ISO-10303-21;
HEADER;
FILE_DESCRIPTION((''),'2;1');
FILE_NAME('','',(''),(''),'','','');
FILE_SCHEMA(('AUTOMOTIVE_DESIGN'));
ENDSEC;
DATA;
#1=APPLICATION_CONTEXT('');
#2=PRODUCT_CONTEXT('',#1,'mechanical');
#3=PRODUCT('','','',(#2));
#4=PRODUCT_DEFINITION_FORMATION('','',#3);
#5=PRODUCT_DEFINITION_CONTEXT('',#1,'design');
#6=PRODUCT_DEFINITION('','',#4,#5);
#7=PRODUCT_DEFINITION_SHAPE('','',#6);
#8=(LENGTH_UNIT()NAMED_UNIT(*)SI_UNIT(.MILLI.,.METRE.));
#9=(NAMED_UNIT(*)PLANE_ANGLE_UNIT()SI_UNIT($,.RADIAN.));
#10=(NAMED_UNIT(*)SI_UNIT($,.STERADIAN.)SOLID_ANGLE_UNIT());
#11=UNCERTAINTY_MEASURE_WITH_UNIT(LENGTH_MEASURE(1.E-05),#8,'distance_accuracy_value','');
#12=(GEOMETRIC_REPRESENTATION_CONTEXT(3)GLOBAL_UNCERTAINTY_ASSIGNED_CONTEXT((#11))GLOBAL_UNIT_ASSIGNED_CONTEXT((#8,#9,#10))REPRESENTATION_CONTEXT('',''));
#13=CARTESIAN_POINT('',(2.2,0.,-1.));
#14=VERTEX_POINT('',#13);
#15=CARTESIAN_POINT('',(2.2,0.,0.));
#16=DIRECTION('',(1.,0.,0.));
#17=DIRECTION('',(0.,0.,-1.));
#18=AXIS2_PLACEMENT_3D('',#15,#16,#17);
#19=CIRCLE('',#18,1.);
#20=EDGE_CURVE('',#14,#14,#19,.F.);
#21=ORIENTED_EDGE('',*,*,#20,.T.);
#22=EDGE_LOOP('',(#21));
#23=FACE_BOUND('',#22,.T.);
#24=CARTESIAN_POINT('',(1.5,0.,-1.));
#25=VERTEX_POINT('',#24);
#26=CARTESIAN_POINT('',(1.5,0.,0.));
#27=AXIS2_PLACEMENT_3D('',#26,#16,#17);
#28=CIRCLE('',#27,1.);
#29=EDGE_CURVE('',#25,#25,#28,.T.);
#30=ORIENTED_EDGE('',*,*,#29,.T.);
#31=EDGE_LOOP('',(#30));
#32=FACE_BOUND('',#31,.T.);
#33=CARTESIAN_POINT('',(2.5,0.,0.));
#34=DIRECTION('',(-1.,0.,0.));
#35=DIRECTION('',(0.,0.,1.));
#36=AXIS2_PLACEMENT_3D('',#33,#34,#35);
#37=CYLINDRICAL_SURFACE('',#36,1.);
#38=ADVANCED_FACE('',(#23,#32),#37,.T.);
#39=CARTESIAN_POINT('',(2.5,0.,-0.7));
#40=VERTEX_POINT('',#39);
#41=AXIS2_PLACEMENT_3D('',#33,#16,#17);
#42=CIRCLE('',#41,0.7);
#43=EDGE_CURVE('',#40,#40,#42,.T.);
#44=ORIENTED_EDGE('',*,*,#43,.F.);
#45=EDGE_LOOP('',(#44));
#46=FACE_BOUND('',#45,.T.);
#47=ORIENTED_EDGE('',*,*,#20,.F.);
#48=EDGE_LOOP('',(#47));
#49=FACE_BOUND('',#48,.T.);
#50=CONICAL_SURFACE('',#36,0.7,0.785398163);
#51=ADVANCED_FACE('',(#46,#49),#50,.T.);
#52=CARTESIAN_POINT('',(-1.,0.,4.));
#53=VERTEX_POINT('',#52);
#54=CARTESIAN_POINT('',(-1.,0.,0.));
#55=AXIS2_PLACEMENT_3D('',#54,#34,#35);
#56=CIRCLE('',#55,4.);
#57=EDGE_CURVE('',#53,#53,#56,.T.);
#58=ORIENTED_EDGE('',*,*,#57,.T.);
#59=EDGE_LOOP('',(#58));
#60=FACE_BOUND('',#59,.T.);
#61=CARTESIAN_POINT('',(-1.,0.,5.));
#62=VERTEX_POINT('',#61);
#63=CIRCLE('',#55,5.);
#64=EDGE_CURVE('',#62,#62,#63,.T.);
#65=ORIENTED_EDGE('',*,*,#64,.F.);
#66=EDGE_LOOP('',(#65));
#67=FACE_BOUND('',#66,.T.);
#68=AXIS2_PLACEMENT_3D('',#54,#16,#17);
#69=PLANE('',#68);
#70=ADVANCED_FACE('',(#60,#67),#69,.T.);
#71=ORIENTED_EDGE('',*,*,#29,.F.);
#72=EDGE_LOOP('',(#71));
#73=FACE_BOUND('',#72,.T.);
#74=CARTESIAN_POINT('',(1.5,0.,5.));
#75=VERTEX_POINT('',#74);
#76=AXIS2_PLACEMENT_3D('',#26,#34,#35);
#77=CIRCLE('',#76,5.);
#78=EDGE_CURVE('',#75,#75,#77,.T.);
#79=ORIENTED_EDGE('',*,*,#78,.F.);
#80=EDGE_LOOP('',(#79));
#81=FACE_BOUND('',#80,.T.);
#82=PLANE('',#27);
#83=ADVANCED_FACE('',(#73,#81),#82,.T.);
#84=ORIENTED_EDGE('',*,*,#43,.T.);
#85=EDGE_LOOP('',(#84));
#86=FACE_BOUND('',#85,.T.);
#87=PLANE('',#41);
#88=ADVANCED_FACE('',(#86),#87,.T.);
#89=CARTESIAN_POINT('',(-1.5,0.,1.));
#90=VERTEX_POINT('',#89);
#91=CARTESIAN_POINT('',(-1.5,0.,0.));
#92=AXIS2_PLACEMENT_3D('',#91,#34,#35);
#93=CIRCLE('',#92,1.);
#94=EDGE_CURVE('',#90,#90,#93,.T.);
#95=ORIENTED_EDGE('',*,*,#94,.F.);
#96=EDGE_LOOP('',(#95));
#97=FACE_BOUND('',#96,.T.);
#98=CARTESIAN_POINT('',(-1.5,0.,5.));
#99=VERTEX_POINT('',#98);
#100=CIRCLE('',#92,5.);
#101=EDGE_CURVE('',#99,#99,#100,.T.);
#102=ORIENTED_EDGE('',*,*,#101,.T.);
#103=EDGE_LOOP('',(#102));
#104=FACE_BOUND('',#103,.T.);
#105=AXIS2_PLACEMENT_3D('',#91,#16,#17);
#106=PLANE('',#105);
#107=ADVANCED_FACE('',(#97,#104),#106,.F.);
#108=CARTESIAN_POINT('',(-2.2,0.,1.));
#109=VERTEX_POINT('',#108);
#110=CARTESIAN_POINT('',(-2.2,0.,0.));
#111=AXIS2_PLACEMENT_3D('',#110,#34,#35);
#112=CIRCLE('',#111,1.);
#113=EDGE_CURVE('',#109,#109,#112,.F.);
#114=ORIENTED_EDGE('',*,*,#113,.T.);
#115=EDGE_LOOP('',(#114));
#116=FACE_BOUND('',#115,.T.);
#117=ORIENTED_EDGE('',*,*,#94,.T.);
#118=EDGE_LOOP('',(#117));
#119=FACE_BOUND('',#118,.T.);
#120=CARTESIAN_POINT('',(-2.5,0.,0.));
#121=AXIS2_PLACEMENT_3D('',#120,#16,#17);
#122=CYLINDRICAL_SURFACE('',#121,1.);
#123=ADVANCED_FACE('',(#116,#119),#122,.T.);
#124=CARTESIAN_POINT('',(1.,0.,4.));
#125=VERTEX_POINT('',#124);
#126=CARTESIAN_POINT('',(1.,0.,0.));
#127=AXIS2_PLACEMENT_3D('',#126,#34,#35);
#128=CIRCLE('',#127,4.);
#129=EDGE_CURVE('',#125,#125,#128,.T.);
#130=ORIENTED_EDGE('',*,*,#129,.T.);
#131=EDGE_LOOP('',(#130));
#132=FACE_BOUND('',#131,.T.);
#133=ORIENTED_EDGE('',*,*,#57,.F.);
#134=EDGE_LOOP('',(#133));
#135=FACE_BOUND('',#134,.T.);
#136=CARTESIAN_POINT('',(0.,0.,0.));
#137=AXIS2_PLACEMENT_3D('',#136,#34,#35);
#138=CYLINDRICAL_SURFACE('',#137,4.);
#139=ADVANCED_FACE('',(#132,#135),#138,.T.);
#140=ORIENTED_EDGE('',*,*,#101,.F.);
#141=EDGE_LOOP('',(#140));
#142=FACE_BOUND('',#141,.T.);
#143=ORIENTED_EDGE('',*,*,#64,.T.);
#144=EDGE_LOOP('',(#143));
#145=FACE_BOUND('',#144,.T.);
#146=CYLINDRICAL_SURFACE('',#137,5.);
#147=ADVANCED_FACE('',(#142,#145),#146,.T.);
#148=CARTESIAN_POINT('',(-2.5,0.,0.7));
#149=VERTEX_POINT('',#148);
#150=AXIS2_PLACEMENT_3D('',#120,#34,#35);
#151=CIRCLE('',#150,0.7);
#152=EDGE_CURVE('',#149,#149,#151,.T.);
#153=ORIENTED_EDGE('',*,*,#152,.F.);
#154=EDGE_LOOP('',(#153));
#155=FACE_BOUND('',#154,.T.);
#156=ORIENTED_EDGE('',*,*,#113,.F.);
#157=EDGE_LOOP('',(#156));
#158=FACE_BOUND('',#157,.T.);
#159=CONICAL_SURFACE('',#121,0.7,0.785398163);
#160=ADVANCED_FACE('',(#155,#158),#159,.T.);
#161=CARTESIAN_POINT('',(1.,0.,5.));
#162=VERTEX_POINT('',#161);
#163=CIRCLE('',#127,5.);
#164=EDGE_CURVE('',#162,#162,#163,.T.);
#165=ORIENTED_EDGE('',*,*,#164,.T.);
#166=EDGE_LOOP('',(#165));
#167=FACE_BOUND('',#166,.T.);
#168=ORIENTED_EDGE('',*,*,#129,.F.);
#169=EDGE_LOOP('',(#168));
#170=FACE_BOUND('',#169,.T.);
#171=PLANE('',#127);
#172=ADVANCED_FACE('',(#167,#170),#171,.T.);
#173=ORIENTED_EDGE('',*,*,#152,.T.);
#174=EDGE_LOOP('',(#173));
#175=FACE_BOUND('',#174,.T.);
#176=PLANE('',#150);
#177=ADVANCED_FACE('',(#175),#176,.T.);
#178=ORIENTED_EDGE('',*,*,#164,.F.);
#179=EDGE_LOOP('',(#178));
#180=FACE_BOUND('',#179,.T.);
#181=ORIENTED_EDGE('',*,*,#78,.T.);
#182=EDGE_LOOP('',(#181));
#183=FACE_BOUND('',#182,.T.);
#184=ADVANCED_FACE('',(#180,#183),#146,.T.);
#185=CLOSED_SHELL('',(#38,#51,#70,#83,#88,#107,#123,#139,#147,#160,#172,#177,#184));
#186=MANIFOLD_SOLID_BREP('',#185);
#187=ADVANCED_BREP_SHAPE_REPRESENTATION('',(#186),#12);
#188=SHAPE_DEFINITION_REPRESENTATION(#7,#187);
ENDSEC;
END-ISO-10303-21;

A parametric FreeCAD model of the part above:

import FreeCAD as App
import Part
import Sketcher

V = App.Vector
Q = App.Units.Quantity


def edges_at(feature, points):
    """Names of the edges that pass closest to the given points."""
    edges = feature.Shape.Edges
    near = lambda p: min(range(len(edges)), key=lambda i: edges[i].distToShape(Part.Vertex(*p))[0])
    return sorted({f"Edge{near(p) + 1}" for p in points})

doc = App.newDocument("Part")
body = doc.addObject("PartDesign::Body", "Body")

# Sketch on XY plane
sketch1 = body.newObject("Sketcher::SketchObject", "Sketch")
sketch1.AttachmentSupport = (doc.getObject("XY_Plane"), [""])
sketch1.MapMode = "FlatFace"
sketch1.addGeometry([
    Part.LineSegment(V(-1, 5, 0), V(-1.5, 5, 0)),  # 0
    Part.LineSegment(V(-1.5, 5, 0), V(-1.5, 0, 0)),  # 1
    Part.LineSegment(V(-1.5, 0, 0), V(1.5, 0, 0)),  # 2
    Part.LineSegment(V(1.5, 0, 0), V(1.5, 5, 0)),  # 3
    Part.LineSegment(V(1.5, 5, 0), V(1, 5, 0)),  # 4
    Part.LineSegment(V(1, 5, 0), V(1, 4, 0)),  # 5
    Part.LineSegment(V(1, 4, 0), V(-1, 4, 0)),  # 6
    Part.LineSegment(V(-1, 4, 0), V(-1, 5, 0)),  # 7
], False)
sketch1.addConstraint([
    Sketcher.Constraint("Coincident", 0, 2, 1, 1),
    Sketcher.Constraint("Coincident", 1, 2, 2, 1),
    Sketcher.Constraint("Coincident", 2, 2, 3, 1),
    Sketcher.Constraint("Coincident", 3, 2, 4, 1),
    Sketcher.Constraint("Coincident", 4, 2, 5, 1),
    Sketcher.Constraint("Coincident", 5, 2, 6, 1),
    Sketcher.Constraint("Coincident", 6, 2, 7, 1),
    Sketcher.Constraint("Coincident", 7, 2, 0, 1),
    Sketcher.Constraint("Horizontal", 0),
    Sketcher.Constraint("Vertical", 1),
    Sketcher.Constraint("Horizontal", 2),
    Sketcher.Constraint("Vertical", 3),
    Sketcher.Constraint("Horizontal", 4),
    Sketcher.Constraint("Vertical", 5),
    Sketcher.Constraint("Horizontal", 6),
    Sketcher.Constraint("Vertical", 7),
    Sketcher.Constraint("Symmetric", 1, 2, 2, 2, -1, 1),
    Sketcher.Constraint("Symmetric", 4, 2, 7, 2, -2),
    Sketcher.Constraint("DistanceX", 2, 1, 2, 2, Q("3 mm")),
    Sketcher.Constraint("DistanceX", 6, 2, 6, 1, Q("2 mm")),
    Sketcher.Constraint("DistanceY", 1, 2, 1, 1, Q("5 mm")),
    Sketcher.Constraint("DistanceY", 5, 2, 5, 1, Q("1 mm")),
])
revolution = body.newObject("PartDesign::Revolution", "Revolution")
revolution.Profile = sketch1
revolution.ReferenceAxis = (sketch1, ["H_Axis"])
revolution.Angle = 360

# Sketch on YZ plane
sketch2 = body.newObject("Sketcher::SketchObject", "Sketch001")
sketch2.AttachmentSupport = (doc.getObject("YZ_Plane"), [""])
sketch2.MapMode = "FlatFace"
sketch2.AttachmentOffset = App.Placement(V(0, 0, -1.5), App.Rotation())
sketch2.addGeometry(Part.Circle(V(0, 0, 0), V(0, 0, 1), 1), False)
sketch2.addConstraint([
    Sketcher.Constraint("Coincident", 0, 3, -1, 1),
    Sketcher.Constraint("Diameter", 0, Q("2 mm")),
])
pad1 = body.newObject("PartDesign::Pad", "Pad")
pad1.Profile = sketch2
pad1.Length = 1
pad1.Reversed = True

# Sketch on YZ plane
sketch3 = body.newObject("Sketcher::SketchObject", "Sketch002")
sketch3.AttachmentSupport = (doc.getObject("YZ_Plane"), [""])
sketch3.MapMode = "FlatFace"
sketch3.AttachmentOffset = App.Placement(V(0, 0, 2.5), App.Rotation())
sketch3.addGeometry(Part.Circle(V(0, 0, 0), V(0, 0, 1), 1), False)
sketch3.addConstraint([
    Sketcher.Constraint("Coincident", 0, 3, -1, 1),
    Sketcher.Constraint("Diameter", 0, Q("2 mm")),
])
pad2 = body.newObject("PartDesign::Pad", "Pad001")
pad2.Profile = sketch3
pad2.Length = 1
pad2.Reversed = True
doc.recompute()

chamfer = body.newObject("PartDesign::Chamfer", "Chamfer")
chamfer.Base = (pad2, edges_at(pad2, [(-2.5, 0, -1)]))
chamfer.Size = 0.3
doc.recompute()

chamfer2 = body.newObject("PartDesign::Chamfer", "Chamfer001")
chamfer2.Base = (chamfer, edges_at(chamfer, [(2.5, 0, -1)]))
chamfer2.Size = 0.3

doc.recompute()
